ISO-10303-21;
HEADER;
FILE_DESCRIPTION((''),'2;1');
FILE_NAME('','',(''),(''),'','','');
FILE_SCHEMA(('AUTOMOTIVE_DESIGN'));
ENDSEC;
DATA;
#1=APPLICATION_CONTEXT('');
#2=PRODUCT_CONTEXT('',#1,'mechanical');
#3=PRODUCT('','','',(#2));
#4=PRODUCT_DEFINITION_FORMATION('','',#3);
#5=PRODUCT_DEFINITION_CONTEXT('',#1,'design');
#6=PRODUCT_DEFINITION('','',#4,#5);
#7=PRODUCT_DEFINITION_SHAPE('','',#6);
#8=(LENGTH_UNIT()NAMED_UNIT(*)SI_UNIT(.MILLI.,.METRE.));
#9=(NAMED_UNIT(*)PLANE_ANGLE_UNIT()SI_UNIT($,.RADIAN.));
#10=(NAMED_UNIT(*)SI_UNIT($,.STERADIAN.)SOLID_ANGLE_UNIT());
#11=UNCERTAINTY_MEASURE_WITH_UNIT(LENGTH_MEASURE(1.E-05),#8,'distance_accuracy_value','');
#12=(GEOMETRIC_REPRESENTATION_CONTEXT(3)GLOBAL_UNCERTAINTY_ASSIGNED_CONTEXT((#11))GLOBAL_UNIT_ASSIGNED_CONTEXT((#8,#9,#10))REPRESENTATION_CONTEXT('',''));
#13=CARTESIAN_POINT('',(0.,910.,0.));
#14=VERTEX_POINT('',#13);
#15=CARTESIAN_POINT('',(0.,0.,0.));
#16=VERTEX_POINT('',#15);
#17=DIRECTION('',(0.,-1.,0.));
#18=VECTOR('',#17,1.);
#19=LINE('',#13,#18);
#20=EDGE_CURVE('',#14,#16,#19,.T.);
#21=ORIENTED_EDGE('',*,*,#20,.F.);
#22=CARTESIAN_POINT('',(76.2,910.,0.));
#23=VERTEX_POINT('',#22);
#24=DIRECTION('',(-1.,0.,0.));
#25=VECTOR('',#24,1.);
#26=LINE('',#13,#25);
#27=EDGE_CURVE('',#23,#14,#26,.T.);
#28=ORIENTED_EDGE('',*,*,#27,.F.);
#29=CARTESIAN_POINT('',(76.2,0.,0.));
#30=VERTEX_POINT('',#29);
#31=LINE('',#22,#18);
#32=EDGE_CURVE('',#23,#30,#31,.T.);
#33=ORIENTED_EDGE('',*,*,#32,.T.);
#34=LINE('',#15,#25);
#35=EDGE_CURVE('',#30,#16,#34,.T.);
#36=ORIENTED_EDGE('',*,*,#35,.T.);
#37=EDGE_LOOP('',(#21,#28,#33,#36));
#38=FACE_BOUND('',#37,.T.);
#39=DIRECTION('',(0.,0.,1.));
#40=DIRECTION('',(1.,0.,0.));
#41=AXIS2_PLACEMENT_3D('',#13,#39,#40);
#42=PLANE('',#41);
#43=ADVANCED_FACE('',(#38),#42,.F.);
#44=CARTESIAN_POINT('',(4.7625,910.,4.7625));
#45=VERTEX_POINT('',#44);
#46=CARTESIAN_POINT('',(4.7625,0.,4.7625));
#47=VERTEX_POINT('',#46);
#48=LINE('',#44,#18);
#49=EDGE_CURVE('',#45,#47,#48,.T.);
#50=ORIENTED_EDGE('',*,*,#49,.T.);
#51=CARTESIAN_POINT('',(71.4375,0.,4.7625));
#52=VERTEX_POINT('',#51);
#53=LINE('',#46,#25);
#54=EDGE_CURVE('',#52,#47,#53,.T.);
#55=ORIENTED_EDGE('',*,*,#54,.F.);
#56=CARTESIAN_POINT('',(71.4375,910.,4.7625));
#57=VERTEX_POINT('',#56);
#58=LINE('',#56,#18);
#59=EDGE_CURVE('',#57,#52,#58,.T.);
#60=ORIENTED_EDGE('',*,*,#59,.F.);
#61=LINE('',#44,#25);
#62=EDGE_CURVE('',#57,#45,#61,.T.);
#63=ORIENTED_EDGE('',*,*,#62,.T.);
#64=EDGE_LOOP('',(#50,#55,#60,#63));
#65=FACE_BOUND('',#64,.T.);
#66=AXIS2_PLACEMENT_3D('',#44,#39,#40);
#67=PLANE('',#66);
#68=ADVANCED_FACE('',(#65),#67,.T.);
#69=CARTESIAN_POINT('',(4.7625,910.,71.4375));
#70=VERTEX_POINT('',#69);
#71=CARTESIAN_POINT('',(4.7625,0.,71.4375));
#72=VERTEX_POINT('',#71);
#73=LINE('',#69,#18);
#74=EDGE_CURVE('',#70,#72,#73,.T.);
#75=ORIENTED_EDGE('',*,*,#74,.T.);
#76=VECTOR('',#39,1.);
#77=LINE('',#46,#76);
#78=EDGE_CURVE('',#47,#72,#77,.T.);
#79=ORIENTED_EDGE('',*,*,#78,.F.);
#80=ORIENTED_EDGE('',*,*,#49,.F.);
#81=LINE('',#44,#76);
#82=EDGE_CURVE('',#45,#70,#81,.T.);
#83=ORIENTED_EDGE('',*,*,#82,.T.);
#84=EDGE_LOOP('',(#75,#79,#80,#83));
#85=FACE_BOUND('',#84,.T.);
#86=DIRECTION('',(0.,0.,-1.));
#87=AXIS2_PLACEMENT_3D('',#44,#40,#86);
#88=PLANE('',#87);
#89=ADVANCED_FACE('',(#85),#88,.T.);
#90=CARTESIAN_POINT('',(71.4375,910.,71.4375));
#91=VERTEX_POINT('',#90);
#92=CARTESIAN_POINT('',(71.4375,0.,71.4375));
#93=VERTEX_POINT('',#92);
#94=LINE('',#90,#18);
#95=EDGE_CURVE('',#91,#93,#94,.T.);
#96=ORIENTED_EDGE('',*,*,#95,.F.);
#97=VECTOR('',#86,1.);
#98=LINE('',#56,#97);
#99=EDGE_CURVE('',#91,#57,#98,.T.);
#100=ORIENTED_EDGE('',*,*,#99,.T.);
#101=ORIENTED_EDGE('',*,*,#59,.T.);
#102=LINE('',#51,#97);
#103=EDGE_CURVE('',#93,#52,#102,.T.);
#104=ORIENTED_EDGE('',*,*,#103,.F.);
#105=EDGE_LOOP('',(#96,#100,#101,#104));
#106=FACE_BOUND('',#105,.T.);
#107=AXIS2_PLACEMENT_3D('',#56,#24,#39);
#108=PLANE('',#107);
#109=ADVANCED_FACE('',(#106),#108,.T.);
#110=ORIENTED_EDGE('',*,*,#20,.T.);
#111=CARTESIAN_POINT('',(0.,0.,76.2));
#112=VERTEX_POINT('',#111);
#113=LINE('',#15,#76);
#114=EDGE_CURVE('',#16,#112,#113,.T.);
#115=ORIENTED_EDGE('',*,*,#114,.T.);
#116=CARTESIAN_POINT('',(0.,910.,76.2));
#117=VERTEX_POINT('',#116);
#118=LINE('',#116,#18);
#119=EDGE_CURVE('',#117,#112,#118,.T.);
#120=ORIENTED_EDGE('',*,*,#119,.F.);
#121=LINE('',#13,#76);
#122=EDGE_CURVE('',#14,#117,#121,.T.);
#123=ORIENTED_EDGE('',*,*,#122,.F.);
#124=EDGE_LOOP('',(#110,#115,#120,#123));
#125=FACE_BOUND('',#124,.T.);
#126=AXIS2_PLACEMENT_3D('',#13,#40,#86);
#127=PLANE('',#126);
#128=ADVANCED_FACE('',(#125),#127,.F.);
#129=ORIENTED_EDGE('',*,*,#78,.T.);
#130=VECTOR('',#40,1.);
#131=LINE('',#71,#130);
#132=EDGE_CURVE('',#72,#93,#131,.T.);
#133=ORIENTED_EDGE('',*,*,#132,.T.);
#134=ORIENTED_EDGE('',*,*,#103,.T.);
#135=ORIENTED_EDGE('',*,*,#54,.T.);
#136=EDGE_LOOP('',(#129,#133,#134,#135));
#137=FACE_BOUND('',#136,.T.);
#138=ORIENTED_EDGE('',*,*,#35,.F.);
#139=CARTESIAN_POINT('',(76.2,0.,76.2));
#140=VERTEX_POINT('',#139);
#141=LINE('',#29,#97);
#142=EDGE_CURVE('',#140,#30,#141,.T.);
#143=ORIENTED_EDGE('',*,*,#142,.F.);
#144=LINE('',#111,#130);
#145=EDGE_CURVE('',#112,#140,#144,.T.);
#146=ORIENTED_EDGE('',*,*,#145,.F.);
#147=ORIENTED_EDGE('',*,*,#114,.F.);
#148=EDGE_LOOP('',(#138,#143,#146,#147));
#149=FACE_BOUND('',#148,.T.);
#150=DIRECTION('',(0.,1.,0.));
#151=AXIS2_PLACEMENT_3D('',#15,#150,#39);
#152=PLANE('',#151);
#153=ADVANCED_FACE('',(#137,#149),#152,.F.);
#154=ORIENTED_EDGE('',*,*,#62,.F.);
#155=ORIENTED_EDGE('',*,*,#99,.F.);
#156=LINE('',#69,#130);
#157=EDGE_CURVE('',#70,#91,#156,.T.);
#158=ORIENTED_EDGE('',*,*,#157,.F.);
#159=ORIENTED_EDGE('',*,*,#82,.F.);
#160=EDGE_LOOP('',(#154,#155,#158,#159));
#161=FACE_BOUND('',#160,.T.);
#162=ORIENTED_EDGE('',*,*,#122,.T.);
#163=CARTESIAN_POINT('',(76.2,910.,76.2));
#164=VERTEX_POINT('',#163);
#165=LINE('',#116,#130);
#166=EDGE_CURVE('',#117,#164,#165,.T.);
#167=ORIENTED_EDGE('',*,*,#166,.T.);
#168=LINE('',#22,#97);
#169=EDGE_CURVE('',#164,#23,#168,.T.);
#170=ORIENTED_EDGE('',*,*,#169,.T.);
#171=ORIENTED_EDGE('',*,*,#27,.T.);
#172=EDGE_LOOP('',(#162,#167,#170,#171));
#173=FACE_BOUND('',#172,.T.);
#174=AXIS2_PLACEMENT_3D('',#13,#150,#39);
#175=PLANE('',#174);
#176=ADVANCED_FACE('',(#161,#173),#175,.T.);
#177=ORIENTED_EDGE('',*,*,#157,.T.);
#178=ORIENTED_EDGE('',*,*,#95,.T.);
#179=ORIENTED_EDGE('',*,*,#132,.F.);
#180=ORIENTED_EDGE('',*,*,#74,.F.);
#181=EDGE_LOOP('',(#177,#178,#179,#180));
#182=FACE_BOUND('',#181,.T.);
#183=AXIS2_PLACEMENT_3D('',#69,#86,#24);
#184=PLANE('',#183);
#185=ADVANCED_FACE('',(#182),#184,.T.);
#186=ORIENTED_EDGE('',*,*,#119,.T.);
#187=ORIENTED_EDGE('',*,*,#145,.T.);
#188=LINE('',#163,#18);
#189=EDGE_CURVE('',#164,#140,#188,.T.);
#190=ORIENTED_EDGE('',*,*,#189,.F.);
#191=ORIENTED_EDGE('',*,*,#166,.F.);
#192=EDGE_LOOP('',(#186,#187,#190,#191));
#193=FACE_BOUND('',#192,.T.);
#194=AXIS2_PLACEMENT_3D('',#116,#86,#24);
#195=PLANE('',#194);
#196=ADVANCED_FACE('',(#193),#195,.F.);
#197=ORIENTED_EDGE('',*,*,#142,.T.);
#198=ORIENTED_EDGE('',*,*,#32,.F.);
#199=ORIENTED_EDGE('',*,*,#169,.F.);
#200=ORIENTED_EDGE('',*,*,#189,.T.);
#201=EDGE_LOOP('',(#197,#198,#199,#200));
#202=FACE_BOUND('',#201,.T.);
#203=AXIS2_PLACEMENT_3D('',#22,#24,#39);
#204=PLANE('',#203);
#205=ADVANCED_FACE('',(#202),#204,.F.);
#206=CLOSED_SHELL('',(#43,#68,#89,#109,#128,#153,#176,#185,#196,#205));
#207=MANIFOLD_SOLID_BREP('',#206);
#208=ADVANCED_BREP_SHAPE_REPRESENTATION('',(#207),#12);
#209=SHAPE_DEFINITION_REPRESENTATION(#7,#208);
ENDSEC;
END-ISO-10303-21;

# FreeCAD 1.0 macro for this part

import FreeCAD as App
import Part
import Sketcher
Q = App.Units.Quantity


def add_polygon(sketch, points):
    """Adds a closed chain of lines whose ends are joined by coincident constraints."""
    first, n = sketch.GeometryCount, len(points)
    for a, b in zip(points, points[1:] + points[:1]):
        sketch.addGeometry(Part.LineSegment(App.Vector(*a, 0), App.Vector(*b, 0)), False)
    for i in range(n):
        sketch.addConstraint(Sketcher.Constraint("Coincident", first + i, 2, first + (i + 1) % n, 1))

doc = App.newDocument("Part")
body = doc.addObject("PartDesign::Body", "Body")

sketch1 = body.newObject("Sketcher::SketchObject", "Sketch")
sketch1.AttachmentSupport = (doc.getObject("XZ_Plane"), [""])
sketch1.MapMode = "FlatFace"
add_polygon(sketch1, [(0, 0), (0, 76), (76, 76), (76, 0)])
add_polygon(sketch1, [(71, 71), (5, 71), (5, 5), (71, 5)])
sketch1.addConstraint([
    Sketcher.Constraint("Vertical", 0),
    Sketcher.Constraint("Horizontal", 1),
    Sketcher.Constraint("Vertical", 2),
    Sketcher.Constraint("Horizontal", 3),
    Sketcher.Constraint("Horizontal", 4),
    Sketcher.Constraint("Vertical", 5),
    Sketcher.Constraint("Horizontal", 6),
    Sketcher.Constraint("Vertical", 7),
    Sketcher.Constraint("Coincident", 3, 2, -1, 1),
    Sketcher.Constraint("Equal", 3, 0),
    Sketcher.Constraint("Equal", 6, 5),
    Sketcher.Constraint("DistanceX", 1, 1, 1, 2, Q("3 in")),
    Sketcher.Constraint("DistanceX", 4, 2, 4, 1, Q("2.625 in")),
    Sketcher.Constraint("DistanceX", -1, 1, 4, 2, Q("0.1875 in")),
    Sketcher.Constraint("DistanceY", -1, 1, 4, 2, Q("2.8125 in")),
])
pad1 = body.newObject("PartDesign::Pad", "Pad")
pad1.Profile = sketch1
pad1.Length = 910
pad1.Reversed = True

doc.recompute()
